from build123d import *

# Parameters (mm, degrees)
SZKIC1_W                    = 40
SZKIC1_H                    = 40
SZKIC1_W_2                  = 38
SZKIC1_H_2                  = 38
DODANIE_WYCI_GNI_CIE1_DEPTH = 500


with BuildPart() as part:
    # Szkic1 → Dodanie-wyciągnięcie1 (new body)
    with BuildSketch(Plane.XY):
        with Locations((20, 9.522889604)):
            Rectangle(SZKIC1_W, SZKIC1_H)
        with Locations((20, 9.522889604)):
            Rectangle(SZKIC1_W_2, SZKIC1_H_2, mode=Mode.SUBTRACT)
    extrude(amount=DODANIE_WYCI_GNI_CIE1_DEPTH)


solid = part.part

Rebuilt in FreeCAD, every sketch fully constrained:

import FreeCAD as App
import Part
import Sketcher

V = App.Vector


def add_polygon(sketch, points):
    """Adds a closed chain of lines whose ends are joined by coincident constraints."""
    first, n = sketch.GeometryCount, len(points)
    for a, b in zip(points, points[1:] + points[:1]):
        sketch.addGeometry(Part.LineSegment(App.Vector(*a, 0), App.Vector(*b, 0)), False)
    for i in range(n):
        sketch.addConstraint(Sketcher.Constraint("Coincident", first + i, 2, first + (i + 1) % n, 1))

doc = App.newDocument("Part")
params = doc.addObject("Spreadsheet::Sheet", "Params")
for row, (alias, value) in enumerate([
    ("sketch1_width", "40 mm"),
    ("sketch1_width2", "38 mm"),
    ("pad1_length", "500 mm"),
], start=1):
    params.set(f"A{row}", alias)
    params.set(f"B{row}", "=" + value)
    params.setAlias(f"B{row}", alias)

body = doc.addObject("PartDesign::Body", "Body")

sketch1 = body.newObject("Sketcher::SketchObject", "Sketch")
sketch1.AttachmentSupport = (doc.getObject("XY_Plane"), [""])
sketch1.MapMode = "FlatFace"
add_polygon(sketch1, [(0, 29.52289), (0, -10.47711), (40, -10.47711), (40, 29.52289)])
add_polygon(sketch1, [(39, -9.47711), (1, -9.47711), (1, 28.52289), (39, 28.52289)])
sketch1.addConstraint(Sketcher.Constraint("Vertical", 0))
sketch1.addConstraint(Sketcher.Constraint("Horizontal", 1))
sketch1.addConstraint(Sketcher.Constraint("Vertical", 2))
sketch1.addConstraint(Sketcher.Constraint("Horizontal", 3))
sketch1.addConstraint(Sketcher.Constraint("Horizontal", 4))
sketch1.addConstraint(Sketcher.Constraint("Vertical", 5))
sketch1.addConstraint(Sketcher.Constraint("Horizontal", 6))
sketch1.addConstraint(Sketcher.Constraint("Vertical", 7))
sketch1.addConstraint(Sketcher.Constraint("PointOnObject", 0, 2, -2))
sketch1.addConstraint(Sketcher.Constraint("Equal", 3, 0))
sketch1.addConstraint(Sketcher.Constraint("Equal", 6, 5))
sketch1.addConstraint(Sketcher.Constraint("DistanceX", 1, 1, 1, 2, 40.0))
sketch1.addConstraint(Sketcher.Constraint("DistanceX", 4, 2, 4, 1, 38.0))
sketch1.addConstraint(Sketcher.Constraint("DistanceX", -1, 1, 4, 2, 1.0))
sketch1.addConstraint(Sketcher.Constraint("DistanceY", 0, 2, 4, 2, 1.0))
sketch1.addConstraint(Sketcher.Constraint("DistanceY", 0, 2, -1, 1, 10.47711))
sketch1.setExpression("Constraints[19]", "Params.sketch1_width")
sketch1.setExpression("Constraints[20]", "Params.sketch1_width2")
pad1 = body.newObject("PartDesign::Pad", "Pad")
pad1.Profile = sketch1
pad1.setExpression("Length", "Params.pad1_length")

doc.recompute()
